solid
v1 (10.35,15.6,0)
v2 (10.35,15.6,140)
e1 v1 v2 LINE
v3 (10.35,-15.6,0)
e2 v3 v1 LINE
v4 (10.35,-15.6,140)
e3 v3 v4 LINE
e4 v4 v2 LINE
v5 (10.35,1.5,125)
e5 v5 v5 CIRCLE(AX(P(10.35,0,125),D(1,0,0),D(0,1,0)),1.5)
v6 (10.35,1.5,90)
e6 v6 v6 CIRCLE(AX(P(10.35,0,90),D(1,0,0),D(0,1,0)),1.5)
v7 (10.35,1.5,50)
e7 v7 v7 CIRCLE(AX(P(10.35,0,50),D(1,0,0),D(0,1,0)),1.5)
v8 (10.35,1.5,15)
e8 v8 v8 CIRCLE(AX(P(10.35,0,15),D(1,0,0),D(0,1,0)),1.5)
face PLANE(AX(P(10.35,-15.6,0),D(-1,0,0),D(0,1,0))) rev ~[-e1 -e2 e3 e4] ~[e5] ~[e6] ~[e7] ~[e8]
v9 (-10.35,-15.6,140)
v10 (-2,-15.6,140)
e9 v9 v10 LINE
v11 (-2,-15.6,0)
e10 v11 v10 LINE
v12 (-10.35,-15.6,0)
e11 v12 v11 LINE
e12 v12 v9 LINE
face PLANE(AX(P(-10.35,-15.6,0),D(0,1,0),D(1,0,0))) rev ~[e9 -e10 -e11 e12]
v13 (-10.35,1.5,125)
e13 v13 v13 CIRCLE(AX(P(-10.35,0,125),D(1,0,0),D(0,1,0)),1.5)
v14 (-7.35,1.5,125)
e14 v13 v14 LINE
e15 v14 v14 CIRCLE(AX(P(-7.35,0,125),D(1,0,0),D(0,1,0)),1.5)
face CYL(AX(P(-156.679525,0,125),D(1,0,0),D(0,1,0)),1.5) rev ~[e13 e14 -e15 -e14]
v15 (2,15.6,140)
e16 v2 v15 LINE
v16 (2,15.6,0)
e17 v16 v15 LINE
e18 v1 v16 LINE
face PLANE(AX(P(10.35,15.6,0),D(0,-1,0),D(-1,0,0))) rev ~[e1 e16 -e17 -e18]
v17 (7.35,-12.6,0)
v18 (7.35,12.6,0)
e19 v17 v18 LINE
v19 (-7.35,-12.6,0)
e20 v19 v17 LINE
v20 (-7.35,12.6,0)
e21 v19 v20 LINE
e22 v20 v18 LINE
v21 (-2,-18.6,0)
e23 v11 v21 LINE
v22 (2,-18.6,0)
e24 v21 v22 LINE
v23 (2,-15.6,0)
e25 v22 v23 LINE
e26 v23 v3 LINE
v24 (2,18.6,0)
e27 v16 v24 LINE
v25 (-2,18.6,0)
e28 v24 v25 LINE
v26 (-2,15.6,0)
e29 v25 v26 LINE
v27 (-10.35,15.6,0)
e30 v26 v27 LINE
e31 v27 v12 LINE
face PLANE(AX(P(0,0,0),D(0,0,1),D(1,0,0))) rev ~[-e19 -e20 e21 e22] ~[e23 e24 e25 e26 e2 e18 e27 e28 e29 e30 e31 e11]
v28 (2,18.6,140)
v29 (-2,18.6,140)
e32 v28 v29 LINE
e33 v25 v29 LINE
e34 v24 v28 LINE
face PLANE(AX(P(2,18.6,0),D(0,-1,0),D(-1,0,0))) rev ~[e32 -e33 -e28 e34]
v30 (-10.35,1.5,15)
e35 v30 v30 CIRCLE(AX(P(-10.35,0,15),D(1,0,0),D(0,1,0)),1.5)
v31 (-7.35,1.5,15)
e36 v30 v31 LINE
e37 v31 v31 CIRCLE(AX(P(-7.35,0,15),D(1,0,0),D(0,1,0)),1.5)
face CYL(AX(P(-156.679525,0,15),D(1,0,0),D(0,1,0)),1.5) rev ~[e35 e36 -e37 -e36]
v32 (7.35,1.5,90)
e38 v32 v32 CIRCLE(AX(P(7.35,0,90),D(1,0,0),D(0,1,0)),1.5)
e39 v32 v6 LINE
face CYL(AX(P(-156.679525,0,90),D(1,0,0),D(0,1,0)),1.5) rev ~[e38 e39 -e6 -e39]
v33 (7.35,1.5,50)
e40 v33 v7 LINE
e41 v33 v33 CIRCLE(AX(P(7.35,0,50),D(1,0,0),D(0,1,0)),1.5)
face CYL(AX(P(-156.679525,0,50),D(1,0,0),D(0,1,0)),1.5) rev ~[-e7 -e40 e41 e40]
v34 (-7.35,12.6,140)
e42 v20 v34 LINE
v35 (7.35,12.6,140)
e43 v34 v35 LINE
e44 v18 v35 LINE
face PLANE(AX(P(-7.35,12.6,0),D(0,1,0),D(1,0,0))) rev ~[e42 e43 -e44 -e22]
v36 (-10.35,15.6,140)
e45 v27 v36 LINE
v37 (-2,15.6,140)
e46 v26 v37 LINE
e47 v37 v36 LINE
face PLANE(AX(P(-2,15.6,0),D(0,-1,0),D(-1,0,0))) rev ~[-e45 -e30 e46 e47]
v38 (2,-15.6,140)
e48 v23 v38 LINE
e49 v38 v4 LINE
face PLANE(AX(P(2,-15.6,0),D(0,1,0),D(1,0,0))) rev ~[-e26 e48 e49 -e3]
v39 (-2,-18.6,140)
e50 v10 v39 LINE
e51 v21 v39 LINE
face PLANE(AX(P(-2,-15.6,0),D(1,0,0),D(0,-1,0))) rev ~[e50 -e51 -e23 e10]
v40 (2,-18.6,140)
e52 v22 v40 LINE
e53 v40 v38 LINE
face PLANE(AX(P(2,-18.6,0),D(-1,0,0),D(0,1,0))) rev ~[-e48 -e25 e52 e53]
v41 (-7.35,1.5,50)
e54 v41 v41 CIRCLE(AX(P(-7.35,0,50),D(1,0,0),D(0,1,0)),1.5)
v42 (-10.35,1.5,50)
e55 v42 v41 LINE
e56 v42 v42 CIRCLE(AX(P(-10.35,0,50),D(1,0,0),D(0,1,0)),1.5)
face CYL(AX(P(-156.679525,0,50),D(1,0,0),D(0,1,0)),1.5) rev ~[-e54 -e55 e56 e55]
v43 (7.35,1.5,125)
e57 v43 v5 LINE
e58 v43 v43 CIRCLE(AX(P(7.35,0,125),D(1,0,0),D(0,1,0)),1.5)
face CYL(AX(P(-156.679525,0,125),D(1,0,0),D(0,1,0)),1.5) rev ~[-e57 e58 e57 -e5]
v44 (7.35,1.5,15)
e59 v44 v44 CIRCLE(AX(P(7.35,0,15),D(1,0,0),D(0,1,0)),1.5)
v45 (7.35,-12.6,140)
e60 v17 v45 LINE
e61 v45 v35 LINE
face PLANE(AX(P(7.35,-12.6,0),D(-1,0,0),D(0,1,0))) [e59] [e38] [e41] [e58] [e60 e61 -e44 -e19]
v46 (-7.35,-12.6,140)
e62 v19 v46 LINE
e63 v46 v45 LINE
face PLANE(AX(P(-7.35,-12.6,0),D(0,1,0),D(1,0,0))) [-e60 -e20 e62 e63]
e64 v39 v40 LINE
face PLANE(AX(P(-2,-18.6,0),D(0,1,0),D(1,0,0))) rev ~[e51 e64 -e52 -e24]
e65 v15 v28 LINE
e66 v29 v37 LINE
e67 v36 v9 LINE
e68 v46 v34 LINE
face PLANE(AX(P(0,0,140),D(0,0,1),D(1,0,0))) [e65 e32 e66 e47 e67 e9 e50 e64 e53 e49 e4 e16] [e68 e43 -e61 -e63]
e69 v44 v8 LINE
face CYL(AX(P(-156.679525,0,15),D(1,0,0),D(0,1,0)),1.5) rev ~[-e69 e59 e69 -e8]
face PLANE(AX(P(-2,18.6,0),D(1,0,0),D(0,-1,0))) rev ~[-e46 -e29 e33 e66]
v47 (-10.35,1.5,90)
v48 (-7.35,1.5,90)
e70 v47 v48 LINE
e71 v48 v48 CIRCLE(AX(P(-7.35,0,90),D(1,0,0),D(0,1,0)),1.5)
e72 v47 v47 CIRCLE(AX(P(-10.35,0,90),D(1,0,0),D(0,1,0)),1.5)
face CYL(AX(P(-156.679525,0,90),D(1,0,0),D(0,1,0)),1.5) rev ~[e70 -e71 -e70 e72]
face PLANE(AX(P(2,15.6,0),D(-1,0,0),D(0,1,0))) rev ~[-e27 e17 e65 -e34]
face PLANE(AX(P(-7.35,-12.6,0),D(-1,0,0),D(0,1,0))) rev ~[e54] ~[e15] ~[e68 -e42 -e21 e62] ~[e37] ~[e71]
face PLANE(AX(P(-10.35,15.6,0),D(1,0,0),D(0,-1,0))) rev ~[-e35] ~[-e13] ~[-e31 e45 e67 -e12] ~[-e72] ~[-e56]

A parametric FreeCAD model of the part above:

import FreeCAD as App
import Part
import Sketcher

V = App.Vector
Q = App.Units.Quantity

doc = App.newDocument("Part")
body = doc.addObject("PartDesign::Body", "Body")

# Sketch on XY plane
sketch1 = body.newObject("Sketcher::SketchObject", "Sketch")
sketch1.AttachmentSupport = (doc.getObject("XY_Plane"), [""])
sketch1.MapMode = "FlatFace"
sketch1.addGeometry([
    Part.LineSegment(V(10.35, -15.6, 0), V(10.35, 15.6, 0)),  # 0
    Part.LineSegment(V(10.35, 15.6, 0), V(2, 15.6, 0)),  # 1
    Part.LineSegment(V(2, 15.6, 0), V(2, 18.6, 0)),  # 2
    Part.LineSegment(V(2, 18.6, 0), V(-2, 18.6, 0)),  # 3
    Part.LineSegment(V(-2, 18.6, 0), V(-2, 15.6, 0)),  # 4
    Part.LineSegment(V(-2, 15.6, 0), V(-10.35, 15.6, 0)),  # 5
    Part.LineSegment(V(-10.35, 15.6, 0), V(-10.35, -15.6, 0)),  # 6
    Part.LineSegment(V(-10.35, -15.6, 0), V(-2, -15.6, 0)),  # 7
    Part.LineSegment(V(-2, -15.6, 0), V(-2, -18.6, 0)),  # 8
    Part.LineSegment(V(-2, -18.6, 0), V(2, -18.6, 0)),  # 9
    Part.LineSegment(V(2, -18.6, 0), V(2, -15.6, 0)),  # 10
    Part.LineSegment(V(2, -15.6, 0), V(10.35, -15.6, 0)),  # 11
    Part.LineSegment(V(7.35, -12.6, 0), V(-7.35, -12.6, 0)),  # 12
    Part.LineSegment(V(-7.35, -12.6, 0), V(-7.35, 12.6, 0)),  # 13
    Part.LineSegment(V(-7.35, 12.6, 0), V(7.35, 12.6, 0)),  # 14
    Part.LineSegment(V(7.35, 12.6, 0), V(7.35, -12.6, 0)),  # 15
], False)
sketch1.addConstraint([
    Sketcher.Constraint("Coincident", 0, 2, 1, 1),
    Sketcher.Constraint("Coincident", 1, 2, 2, 1),
    Sketcher.Constraint("Coincident", 2, 2, 3, 1),
    Sketcher.Constraint("Coincident", 3, 2, 4, 1),
    Sketcher.Constraint("Coincident", 4, 2, 5, 1),
    Sketcher.Constraint("Coincident", 5, 2, 6, 1),
    Sketcher.Constraint("Coincident", 6, 2, 7, 1),
    Sketcher.Constraint("Coincident", 7, 2, 8, 1),
    Sketcher.Constraint("Coincident", 8, 2, 9, 1),
    Sketcher.Constraint("Coincident", 9, 2, 10, 1),
    Sketcher.Constraint("Coincident", 10, 2, 11, 1),
    Sketcher.Constraint("Coincident", 11, 2, 0, 1),
    Sketcher.Constraint("Coincident", 12, 2, 13, 1),
    Sketcher.Constraint("Coincident", 13, 2, 14, 1),
    Sketcher.Constraint("Coincident", 14, 2, 15, 1),
    Sketcher.Constraint("Coincident", 15, 2, 12, 1),
    Sketcher.Constraint("Vertical", 0),
    Sketcher.Constraint("Horizontal", 1),
    Sketcher.Constraint("Vertical", 2),
    Sketcher.Constraint("Horizontal", 3),
    Sketcher.Constraint("Vertical", 4),
    Sketcher.Constraint("Horizontal", 5),
    Sketcher.Constraint("Vertical", 6),
    Sketcher.Constraint("Horizontal", 7),
    Sketcher.Constraint("Vertical", 8),
    Sketcher.Constraint("Horizontal", 9),
    Sketcher.Constraint("Vertical", 10),
    Sketcher.Constraint("Horizontal", 11),
    Sketcher.Constraint("Horizontal", 12),
    Sketcher.Constraint("Vertical", 13),
    Sketcher.Constraint("Horizontal", 14),
    Sketcher.Constraint("Vertical", 15),
    Sketcher.Constraint("Symmetric", 0, 2, 6, 2, -1, 1),
    Sketcher.Constraint("Symmetric", 2, 2, 8, 2, -1, 1),
    Sketcher.Constraint("Symmetric", 4, 2, 10, 2, -1, 1),
    Sketcher.Constraint("Symmetric", 12, 2, 14, 2, -1, 1),
    Sketcher.Constraint("Symmetric", 1, 2, 4, 2, -2),
    Sketcher.Constraint("DistanceX", 3, 2, 3, 1, Q("4 mm")),
    Sketcher.Constraint("DistanceY", 2, 1, 2, 2, Q("3 mm")),
    Sketcher.Constraint("DistanceX", 12, 2, 12, 1, Q("14.7 mm")),
    Sketcher.Constraint("DistanceY", 0, 1, 0, 2, Q("31.2 mm")),
    Sketcher.Constraint("DistanceY", 13, 1, 13, 2, Q("25.2 mm")),
    Sketcher.Constraint("DistanceX", 6, 2, 12, 2, Q("3 mm")),
])
pad1 = body.newObject("PartDesign::Pad", "Pad")
pad1.Profile = sketch1
pad1.Length = 140

# Sketch on YZ plane
sketch2 = body.newObject("Sketcher::SketchObject", "Sketch001")
sketch2.AttachmentSupport = (doc.getObject("YZ_Plane"), [""])
sketch2.MapMode = "FlatFace"
sketch2.AttachmentOffset = App.Placement(V(0, 0, -10.35), App.Rotation())
sketch2.addGeometry([
    Part.Circle(V(0, 15, 0), V(0, 0, 1), 1.5),
    Part.Circle(V(0, 50, 0), V(0, 0, 1), 1.5),
    Part.Circle(V(0, 90, 0), V(0, 0, 1), 1.5),
    Part.Circle(V(0, 125, 0), V(0, 0, 1), 1.5),
], False)
sketch2.addConstraint([
    Sketcher.Constraint("Equal", 0, 1),
    Sketcher.Constraint("Equal", 1, 2),
    Sketcher.Constraint("Equal", 2, 3),
    Sketcher.Constraint("PointOnObject", 0, 3, -2),
    Sketcher.Constraint("PointOnObject", 1, 3, -2),
    Sketcher.Constraint("PointOnObject", 2, 3, -2),
    Sketcher.Constraint("PointOnObject", 3, 3, -2),
    Sketcher.Constraint("Diameter", 0, Q("3 mm")),
    Sketcher.Constraint("DistanceY", -1, 1, 0, 3, Q("15 mm")),
    Sketcher.Constraint("DistanceY", -1, 1, 1, 3, Q("50 mm")),
    Sketcher.Constraint("DistanceY", -1, 1, 2, 3, Q("90 mm")),
    Sketcher.Constraint("DistanceY", -1, 1, 3, 3, Q("125 mm")),
])
doc.recompute()
hole = body.newObject("PartDesign::Hole", "Hole")
hole.Profile = sketch2
hole.ThreadType = "None"
hole.Diameter = 3
hole.DepthType = "ThroughAll"
hole.Reversed = True

doc.recompute()
